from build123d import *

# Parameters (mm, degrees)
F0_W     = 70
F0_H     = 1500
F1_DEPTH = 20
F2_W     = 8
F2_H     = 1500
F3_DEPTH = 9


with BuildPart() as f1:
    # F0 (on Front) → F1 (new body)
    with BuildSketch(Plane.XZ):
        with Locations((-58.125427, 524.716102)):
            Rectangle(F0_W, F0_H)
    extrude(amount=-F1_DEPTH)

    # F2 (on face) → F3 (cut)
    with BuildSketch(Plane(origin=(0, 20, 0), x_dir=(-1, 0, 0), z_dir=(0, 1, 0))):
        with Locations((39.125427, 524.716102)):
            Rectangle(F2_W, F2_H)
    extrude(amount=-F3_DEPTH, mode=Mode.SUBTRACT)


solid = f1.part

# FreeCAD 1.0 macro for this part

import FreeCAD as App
import Part
import Sketcher
from FreeCAD import Vector
Q = App.Units.Quantity


def add_polygon(sketch, points):
    """Adds a closed chain of lines whose ends are joined by coincident constraints."""
    first, n = sketch.GeometryCount, len(points)
    for a, b in zip(points, points[1:] + points[:1]):
        sketch.addGeometry(Part.LineSegment(App.Vector(*a, 0), App.Vector(*b, 0)), False)
    for i in range(n):
        sketch.addConstraint(Sketcher.Constraint("Coincident", first + i, 2, first + (i + 1) % n, 1))

doc = App.newDocument("Part")
body = doc.addObject("PartDesign::Body", "Body")

sketch1 = body.newObject("Sketcher::SketchObject", "Sketch")
sketch1.AttachmentSupport = (doc.getObject("XZ_Plane"), [""])
sketch1.MapMode = "FlatFace"
add_polygon(sketch1, [(-93, 1275), (-93, -225), (-23, -225), (-23, 1275)])
sketch1.addConstraint([
    Sketcher.Constraint("Vertical", 0),
    Sketcher.Constraint("Horizontal", 1),
    Sketcher.Constraint("Vertical", 2),
    Sketcher.Constraint("Horizontal", 3),
    Sketcher.Constraint("DistanceX", 1, 1, 1, 2, Q("70 mm")),
    Sketcher.Constraint("DistanceY", 0, 2, 0, 1, Q("1500 mm")),
    Sketcher.Constraint("DistanceY", 0, 2, -1, 1, Q("225.283898 mm")),
    Sketcher.Constraint("DistanceX", 0, 2, -1, 1, Q("93.125427 mm")),
])
pad1 = body.newObject("PartDesign::Pad", "Pad")
pad1.Profile = sketch1
pad1.Length = 20
pad1.Reversed = True

sketch2 = body.newObject("Sketcher::SketchObject", "Sketch001")
sketch2.AttachmentSupport = (doc.getObject("XZ_Plane"), [""])
sketch2.MapMode = "FlatFace"
sketch2.AttachmentOffset = App.Placement(Vector(0, 0, -20), App.Rotation())
add_polygon(sketch2, [(-35, 1275), (-35, -225), (-43, -225), (-43, 1275)])
sketch2.addConstraint([
    Sketcher.Constraint("Vertical", 0),
    Sketcher.Constraint("Horizontal", 1),
    Sketcher.Constraint("Vertical", 2),
    Sketcher.Constraint("Horizontal", 3),
    Sketcher.Constraint("DistanceX", 1, 2, 1, 1, Q("8 mm")),
    Sketcher.Constraint("DistanceY", 0, 2, 0, 1, Q("1500 mm")),
    Sketcher.Constraint("DistanceY", 0, 2, -1, 1, Q("225.283898 mm")),
    Sketcher.Constraint("DistanceX", 0, 2, -1, 1, Q("35.125427 mm")),
])
pocket1 = body.newObject("PartDesign::Pocket", "Pocket")
pocket1.Profile = sketch2
pocket1.Length = 9
pocket1.Reversed = True

doc.recompute()
